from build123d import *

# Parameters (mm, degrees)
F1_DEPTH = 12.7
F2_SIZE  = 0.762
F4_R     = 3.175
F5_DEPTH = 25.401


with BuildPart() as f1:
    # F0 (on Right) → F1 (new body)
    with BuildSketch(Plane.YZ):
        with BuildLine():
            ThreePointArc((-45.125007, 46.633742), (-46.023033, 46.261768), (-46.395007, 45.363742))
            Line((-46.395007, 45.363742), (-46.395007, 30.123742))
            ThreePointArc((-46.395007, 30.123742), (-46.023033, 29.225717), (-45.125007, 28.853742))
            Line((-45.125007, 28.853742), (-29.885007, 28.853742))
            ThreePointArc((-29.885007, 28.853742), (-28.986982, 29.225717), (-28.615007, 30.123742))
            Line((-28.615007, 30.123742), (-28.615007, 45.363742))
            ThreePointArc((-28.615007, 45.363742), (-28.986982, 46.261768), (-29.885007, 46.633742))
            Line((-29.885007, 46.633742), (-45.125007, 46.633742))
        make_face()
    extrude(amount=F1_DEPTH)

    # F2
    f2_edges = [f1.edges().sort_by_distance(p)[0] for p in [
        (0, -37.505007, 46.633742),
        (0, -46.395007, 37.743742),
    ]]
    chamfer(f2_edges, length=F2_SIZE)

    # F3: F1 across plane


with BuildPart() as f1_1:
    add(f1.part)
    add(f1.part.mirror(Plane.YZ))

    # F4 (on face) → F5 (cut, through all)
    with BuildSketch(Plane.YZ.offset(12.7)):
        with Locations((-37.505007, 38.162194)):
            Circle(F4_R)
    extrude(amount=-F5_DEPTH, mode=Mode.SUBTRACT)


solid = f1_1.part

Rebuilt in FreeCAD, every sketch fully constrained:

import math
import FreeCAD as App
import Part
import Sketcher

V = App.Vector
Q = App.Units.Quantity


def edges_at(feature, points):
    """Names of the edges that pass closest to the given points."""
    edges = feature.Shape.Edges
    near = lambda p: min(range(len(edges)), key=lambda i: edges[i].distToShape(Part.Vertex(*p))[0])
    return sorted({f"Edge{near(p) + 1}" for p in points})

doc = App.newDocument("Part")
body = doc.addObject("PartDesign::Body", "Body")

# Sketch on YZ plane
sketch1 = body.newObject("Sketcher::SketchObject", "Sketch")
sketch1.AttachmentSupport = (doc.getObject("YZ_Plane"), [""])
sketch1.MapMode = "FlatFace"
sketch1.addGeometry([
    Part.ArcOfCircle(Part.Circle(V(-45.1, 45.4, 0), V(0, 0, 1), 1.3), math.radians(90), math.radians(180)),  # 0
    Part.LineSegment(V(-46.4, 45.4, 0), V(-46.4, 30.1, 0)),  # 1
    Part.ArcOfCircle(Part.Circle(V(-45.1, 30.1, 0), V(0, 0, 1), 1.3), math.radians(-180), math.radians(-90)),  # 2
    Part.LineSegment(V(-45.1, 28.9, 0), V(-29.9, 28.9, 0)),  # 3
    Part.ArcOfCircle(Part.Circle(V(-29.9, 30.1, 0), V(0, 0, 1), 1.3), math.radians(-90), math.radians(0)),  # 4
    Part.LineSegment(V(-28.6, 30.1, 0), V(-28.6, 45.4, 0)),  # 5
    Part.ArcOfCircle(Part.Circle(V(-29.9, 45.4, 0), V(0, 0, 1), 1.3), math.radians(0), math.radians(90)),  # 6
    Part.LineSegment(V(-29.9, 46.6, 0), V(-45.1, 46.6, 0)),  # 7
], False)
sketch1.addConstraint([
    Sketcher.Constraint("Tangent", 0, 2, 1, 1),
    Sketcher.Constraint("Tangent", 1, 2, 2, 1),
    Sketcher.Constraint("Tangent", 2, 2, 3, 1),
    Sketcher.Constraint("Tangent", 3, 2, 4, 1),
    Sketcher.Constraint("Tangent", 4, 2, 5, 1),
    Sketcher.Constraint("Tangent", 5, 2, 6, 1),
    Sketcher.Constraint("Tangent", 6, 2, 7, 1),
    Sketcher.Constraint("Tangent", 7, 2, 0, 1),
    Sketcher.Constraint("Vertical", 1),
    Sketcher.Constraint("Horizontal", 3),
    Sketcher.Constraint("Vertical", 5),
    Sketcher.Constraint("Horizontal", 7),
    Sketcher.Constraint("Equal", 0, 2),
    Sketcher.Constraint("Equal", 2, 4),
    Sketcher.Constraint("Equal", 4, 6),
    Sketcher.Constraint("Equal", 7, 1),
    Sketcher.Constraint("Radius", 0, Q("0.0499999 in")),
    Sketcher.Constraint("DistanceX", 3, 1, 3, 2, Q("0.6 in")),
    Sketcher.Constraint("DistanceX", 0, 3, -1, 1, 45.125008),
    Sketcher.Constraint("DistanceY", -1, 1, 6, 3, 45.363742),
])
pad1 = body.newObject("PartDesign::Pad", "Pad")
pad1.Profile = sketch1
pad1.Length = Q("0.5 in")
doc.recompute()

chamfer = body.newObject("PartDesign::Chamfer", "Chamfer")
chamfer.Base = (pad1, edges_at(pad1, [(0, -37.505, 46.634), (0, -46.395, 37.744)]))
chamfer.Size = Q("0.03 in")
body2 = doc.addObject("PartDesign::Body", "Body001")
doc.recompute()

body2.BaseFeature = body
doc.recompute()

mirroring = doc.addObject("Part::Mirroring", "Mirroring")
mirroring.Source = body
mirroring.Base = V(0, 0, 0)
mirroring.Normal = V(1, 0, 0)
body3 = doc.addObject("PartDesign::Body", "Body002")
body3.BaseFeature = mirroring
boolean = body2.newObject("PartDesign::Boolean", "Boolean")
boolean.Type = "Fuse"
boolean.addObjects([body3])
doc.recompute()

# Sketch on YZ plane
sketch2 = body2.newObject("Sketcher::SketchObject", "Sketch001")
sketch2.AttachmentSupport = (doc.getObject("YZ_Plane001"), [""])
sketch2.MapMode = "FlatFace"
sketch2.AttachmentOffset = App.Placement(V(0, 0, 0.5 * 25.4), App.Rotation())
sketch2.addGeometry(Part.Circle(V(-37.5, 38.2, 0), V(0, 0, 1), 3.2), False)
sketch2.addConstraint([
    Sketcher.Constraint("Diameter", 0, Q("0.25 in")),
    Sketcher.Constraint("DistanceX", 0, 3, -1, 1, 37.505007),
    Sketcher.Constraint("DistanceY", -1, 1, 0, 3, 38.162194),
])
pocket1 = body2.newObject("PartDesign::Pocket", "Pocket")
pocket1.Profile = sketch2
pocket1.Type = "ThroughAll"
mirroring.Visibility = False

doc.recompute()
